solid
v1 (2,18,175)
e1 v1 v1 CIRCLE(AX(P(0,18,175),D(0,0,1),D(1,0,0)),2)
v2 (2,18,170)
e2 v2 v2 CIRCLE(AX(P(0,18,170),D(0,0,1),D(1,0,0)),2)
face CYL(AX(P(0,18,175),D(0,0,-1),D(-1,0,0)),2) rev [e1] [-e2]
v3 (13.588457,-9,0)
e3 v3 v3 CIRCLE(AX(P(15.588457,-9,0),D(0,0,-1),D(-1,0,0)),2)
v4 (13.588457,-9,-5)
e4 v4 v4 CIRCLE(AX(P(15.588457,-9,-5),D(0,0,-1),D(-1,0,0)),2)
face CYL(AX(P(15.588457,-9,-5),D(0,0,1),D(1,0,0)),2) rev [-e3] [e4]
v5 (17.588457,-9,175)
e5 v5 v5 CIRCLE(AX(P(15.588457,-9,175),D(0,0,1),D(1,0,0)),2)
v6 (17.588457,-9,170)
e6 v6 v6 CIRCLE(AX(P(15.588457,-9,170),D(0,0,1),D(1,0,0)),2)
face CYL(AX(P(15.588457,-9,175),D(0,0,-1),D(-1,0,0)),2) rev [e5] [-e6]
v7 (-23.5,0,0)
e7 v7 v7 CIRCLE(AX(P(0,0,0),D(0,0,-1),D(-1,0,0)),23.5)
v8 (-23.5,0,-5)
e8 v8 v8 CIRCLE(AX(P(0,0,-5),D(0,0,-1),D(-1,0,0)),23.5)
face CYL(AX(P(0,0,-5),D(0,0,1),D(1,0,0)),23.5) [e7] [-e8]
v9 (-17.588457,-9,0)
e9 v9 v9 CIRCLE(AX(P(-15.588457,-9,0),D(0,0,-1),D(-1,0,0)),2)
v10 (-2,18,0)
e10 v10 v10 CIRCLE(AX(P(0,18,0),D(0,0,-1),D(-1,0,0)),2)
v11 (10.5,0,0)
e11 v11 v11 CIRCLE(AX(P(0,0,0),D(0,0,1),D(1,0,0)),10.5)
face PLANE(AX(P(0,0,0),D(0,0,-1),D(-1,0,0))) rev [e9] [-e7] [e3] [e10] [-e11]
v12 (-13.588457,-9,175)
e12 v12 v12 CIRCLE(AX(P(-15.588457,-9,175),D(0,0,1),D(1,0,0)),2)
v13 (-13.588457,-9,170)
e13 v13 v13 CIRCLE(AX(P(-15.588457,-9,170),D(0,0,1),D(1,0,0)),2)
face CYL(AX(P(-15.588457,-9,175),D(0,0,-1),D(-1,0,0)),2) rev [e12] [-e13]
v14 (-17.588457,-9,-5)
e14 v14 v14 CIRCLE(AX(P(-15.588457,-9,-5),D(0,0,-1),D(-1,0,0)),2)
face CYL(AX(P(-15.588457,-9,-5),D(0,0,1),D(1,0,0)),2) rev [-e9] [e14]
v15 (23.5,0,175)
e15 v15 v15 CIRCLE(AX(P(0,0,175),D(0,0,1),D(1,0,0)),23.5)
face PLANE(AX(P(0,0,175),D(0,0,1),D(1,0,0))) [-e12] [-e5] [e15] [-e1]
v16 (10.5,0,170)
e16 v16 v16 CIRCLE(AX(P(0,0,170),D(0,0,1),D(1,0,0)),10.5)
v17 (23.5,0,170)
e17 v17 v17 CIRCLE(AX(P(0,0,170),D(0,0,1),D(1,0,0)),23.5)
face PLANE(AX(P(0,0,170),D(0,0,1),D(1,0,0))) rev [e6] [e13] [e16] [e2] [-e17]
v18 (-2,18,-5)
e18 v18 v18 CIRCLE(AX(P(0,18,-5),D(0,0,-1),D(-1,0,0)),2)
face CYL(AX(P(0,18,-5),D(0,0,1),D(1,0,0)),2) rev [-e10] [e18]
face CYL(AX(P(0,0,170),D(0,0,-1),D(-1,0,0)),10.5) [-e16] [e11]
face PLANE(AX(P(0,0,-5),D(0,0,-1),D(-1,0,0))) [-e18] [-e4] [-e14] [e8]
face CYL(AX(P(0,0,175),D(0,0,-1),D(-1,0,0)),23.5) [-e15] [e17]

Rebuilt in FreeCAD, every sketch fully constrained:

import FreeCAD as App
import Part
import Sketcher

doc = App.newDocument("Part")
params = doc.addObject("Spreadsheet::Sheet", "Params")
for row, (alias, value) in enumerate([
    ("sketch1_diameter", "21 mm"),
    ("pad1_length", "170 mm"),
    ("sketch2_diameter", "47 mm"),
    ("sketch2_diameter2", "4 mm"),
    ("pad2_length", "5 mm"),
    ("sketch3_diameter", "47 mm"),
    ("sketch3_diameter2", "4 mm"),
    ("pad3_length", "5 mm"),
], start=1):
    params.set(f"A{row}", alias)
    params.set(f"B{row}", "=" + value)
    params.setAlias(f"B{row}", alias)

body = doc.addObject("PartDesign::Body", "Body")

# Sketch on XY plane
sketch1 = body.newObject("Sketcher::SketchObject", "Sketch")
sketch1.AttachmentSupport = (doc.getObject("XY_Plane"), [""])
sketch1.MapMode = "FlatFace"
sketch1.addGeometry(Part.Circle(App.Vector(0, 0, 0), App.Vector(0, 0, 1), 10.5), False)
sketch1.addConstraint([
    Sketcher.Constraint("Coincident", 0, 3, -1, 1),
    Sketcher.Constraint("Diameter", 0, 21.0),
])
sketch1.setExpression("Constraints[1]", "Params.sketch1_diameter")
pad1 = body.newObject("PartDesign::Pad", "Pad")
pad1.Profile = sketch1
pad1.setExpression("Length", "Params.pad1_length")

# Sketch on XY plane
sketch2 = body.newObject("Sketcher::SketchObject", "Sketch001")
sketch2.AttachmentSupport = (doc.getObject("XY_Plane"), [""])
sketch2.MapMode = "FlatFace"
sketch2.AttachmentOffset = App.Placement(App.Vector(0, 0, 170), App.Rotation())
sketch2.addGeometry([
    Part.Circle(App.Vector(0, 0, 0), App.Vector(0, 0, 1), 23.5),
    Part.Circle(App.Vector(-15.588457, -9, 0), App.Vector(0, 0, 1), 2),
    Part.Circle(App.Vector(15.588457, -9, 0), App.Vector(0, 0, 1), 2),
    Part.Circle(App.Vector(0, 18, 0), App.Vector(0, 0, 1), 2),
], False)
sketch2.addConstraint([
    Sketcher.Constraint("Coincident", 0, 3, -1, 1),
    Sketcher.Constraint("Equal", 1, 2),
    Sketcher.Constraint("Equal", 2, 3),
    Sketcher.Constraint("Symmetric", 1, 3, 2, 3, -2),
    Sketcher.Constraint("PointOnObject", 3, 3, -2),
    Sketcher.Constraint("Diameter", 0, 47.0),
    Sketcher.Constraint("Diameter", 1, 4.0),
    Sketcher.Constraint("DistanceY", 1, 3, -1, 1, 9.0),
    Sketcher.Constraint("DistanceY", -1, 1, 3, 3, 18.0),
    Sketcher.Constraint("DistanceX", 1, 3, -1, 1, 15.588457),
])
sketch2.setExpression("Constraints[5]", "Params.sketch2_diameter")
sketch2.setExpression("Constraints[6]", "Params.sketch2_diameter2")
pad2 = body.newObject("PartDesign::Pad", "Pad001")
pad2.Profile = sketch2
pad2.setExpression("Length", "Params.pad2_length")

# Sketch on XY plane
sketch3 = body.newObject("Sketcher::SketchObject", "Sketch002")
sketch3.AttachmentSupport = (doc.getObject("XY_Plane"), [""])
sketch3.MapMode = "FlatFace"
sketch3.AttachmentOffset = App.Placement(App.Vector(0, 0, -5), App.Rotation())
sketch3.addGeometry([
    Part.Circle(App.Vector(0, 0, 0), App.Vector(0, 0, 1), 23.5),
    Part.Circle(App.Vector(0, 18, 0), App.Vector(0, 0, 1), 2),
    Part.Circle(App.Vector(-15.588457, -9, 0), App.Vector(0, 0, 1), 2),
    Part.Circle(App.Vector(15.588457, -9, 0), App.Vector(0, 0, 1), 2),
], False)
sketch3.addConstraint([
    Sketcher.Constraint("Coincident", 0, 3, -1, 1),
    Sketcher.Constraint("Equal", 1, 2),
    Sketcher.Constraint("Equal", 2, 3),
    Sketcher.Constraint("Symmetric", 2, 3, 3, 3, -2),
    Sketcher.Constraint("PointOnObject", 1, 3, -2),
    Sketcher.Constraint("Diameter", 0, 47.0),
    Sketcher.Constraint("Diameter", 1, 4.0),
    Sketcher.Constraint("DistanceY", -1, 1, 1, 3, 18.0),
    Sketcher.Constraint("DistanceY", 2, 3, -1, 1, 9.0),
    Sketcher.Constraint("DistanceX", 2, 3, -1, 1, 15.588457),
])
sketch3.setExpression("Constraints[5]", "Params.sketch3_diameter")
sketch3.setExpression("Constraints[6]", "Params.sketch3_diameter2")
pad3 = body.newObject("PartDesign::Pad", "Pad002")
pad3.Profile = sketch3
pad3.setExpression("Length", "Params.pad3_length")

doc.recompute()
